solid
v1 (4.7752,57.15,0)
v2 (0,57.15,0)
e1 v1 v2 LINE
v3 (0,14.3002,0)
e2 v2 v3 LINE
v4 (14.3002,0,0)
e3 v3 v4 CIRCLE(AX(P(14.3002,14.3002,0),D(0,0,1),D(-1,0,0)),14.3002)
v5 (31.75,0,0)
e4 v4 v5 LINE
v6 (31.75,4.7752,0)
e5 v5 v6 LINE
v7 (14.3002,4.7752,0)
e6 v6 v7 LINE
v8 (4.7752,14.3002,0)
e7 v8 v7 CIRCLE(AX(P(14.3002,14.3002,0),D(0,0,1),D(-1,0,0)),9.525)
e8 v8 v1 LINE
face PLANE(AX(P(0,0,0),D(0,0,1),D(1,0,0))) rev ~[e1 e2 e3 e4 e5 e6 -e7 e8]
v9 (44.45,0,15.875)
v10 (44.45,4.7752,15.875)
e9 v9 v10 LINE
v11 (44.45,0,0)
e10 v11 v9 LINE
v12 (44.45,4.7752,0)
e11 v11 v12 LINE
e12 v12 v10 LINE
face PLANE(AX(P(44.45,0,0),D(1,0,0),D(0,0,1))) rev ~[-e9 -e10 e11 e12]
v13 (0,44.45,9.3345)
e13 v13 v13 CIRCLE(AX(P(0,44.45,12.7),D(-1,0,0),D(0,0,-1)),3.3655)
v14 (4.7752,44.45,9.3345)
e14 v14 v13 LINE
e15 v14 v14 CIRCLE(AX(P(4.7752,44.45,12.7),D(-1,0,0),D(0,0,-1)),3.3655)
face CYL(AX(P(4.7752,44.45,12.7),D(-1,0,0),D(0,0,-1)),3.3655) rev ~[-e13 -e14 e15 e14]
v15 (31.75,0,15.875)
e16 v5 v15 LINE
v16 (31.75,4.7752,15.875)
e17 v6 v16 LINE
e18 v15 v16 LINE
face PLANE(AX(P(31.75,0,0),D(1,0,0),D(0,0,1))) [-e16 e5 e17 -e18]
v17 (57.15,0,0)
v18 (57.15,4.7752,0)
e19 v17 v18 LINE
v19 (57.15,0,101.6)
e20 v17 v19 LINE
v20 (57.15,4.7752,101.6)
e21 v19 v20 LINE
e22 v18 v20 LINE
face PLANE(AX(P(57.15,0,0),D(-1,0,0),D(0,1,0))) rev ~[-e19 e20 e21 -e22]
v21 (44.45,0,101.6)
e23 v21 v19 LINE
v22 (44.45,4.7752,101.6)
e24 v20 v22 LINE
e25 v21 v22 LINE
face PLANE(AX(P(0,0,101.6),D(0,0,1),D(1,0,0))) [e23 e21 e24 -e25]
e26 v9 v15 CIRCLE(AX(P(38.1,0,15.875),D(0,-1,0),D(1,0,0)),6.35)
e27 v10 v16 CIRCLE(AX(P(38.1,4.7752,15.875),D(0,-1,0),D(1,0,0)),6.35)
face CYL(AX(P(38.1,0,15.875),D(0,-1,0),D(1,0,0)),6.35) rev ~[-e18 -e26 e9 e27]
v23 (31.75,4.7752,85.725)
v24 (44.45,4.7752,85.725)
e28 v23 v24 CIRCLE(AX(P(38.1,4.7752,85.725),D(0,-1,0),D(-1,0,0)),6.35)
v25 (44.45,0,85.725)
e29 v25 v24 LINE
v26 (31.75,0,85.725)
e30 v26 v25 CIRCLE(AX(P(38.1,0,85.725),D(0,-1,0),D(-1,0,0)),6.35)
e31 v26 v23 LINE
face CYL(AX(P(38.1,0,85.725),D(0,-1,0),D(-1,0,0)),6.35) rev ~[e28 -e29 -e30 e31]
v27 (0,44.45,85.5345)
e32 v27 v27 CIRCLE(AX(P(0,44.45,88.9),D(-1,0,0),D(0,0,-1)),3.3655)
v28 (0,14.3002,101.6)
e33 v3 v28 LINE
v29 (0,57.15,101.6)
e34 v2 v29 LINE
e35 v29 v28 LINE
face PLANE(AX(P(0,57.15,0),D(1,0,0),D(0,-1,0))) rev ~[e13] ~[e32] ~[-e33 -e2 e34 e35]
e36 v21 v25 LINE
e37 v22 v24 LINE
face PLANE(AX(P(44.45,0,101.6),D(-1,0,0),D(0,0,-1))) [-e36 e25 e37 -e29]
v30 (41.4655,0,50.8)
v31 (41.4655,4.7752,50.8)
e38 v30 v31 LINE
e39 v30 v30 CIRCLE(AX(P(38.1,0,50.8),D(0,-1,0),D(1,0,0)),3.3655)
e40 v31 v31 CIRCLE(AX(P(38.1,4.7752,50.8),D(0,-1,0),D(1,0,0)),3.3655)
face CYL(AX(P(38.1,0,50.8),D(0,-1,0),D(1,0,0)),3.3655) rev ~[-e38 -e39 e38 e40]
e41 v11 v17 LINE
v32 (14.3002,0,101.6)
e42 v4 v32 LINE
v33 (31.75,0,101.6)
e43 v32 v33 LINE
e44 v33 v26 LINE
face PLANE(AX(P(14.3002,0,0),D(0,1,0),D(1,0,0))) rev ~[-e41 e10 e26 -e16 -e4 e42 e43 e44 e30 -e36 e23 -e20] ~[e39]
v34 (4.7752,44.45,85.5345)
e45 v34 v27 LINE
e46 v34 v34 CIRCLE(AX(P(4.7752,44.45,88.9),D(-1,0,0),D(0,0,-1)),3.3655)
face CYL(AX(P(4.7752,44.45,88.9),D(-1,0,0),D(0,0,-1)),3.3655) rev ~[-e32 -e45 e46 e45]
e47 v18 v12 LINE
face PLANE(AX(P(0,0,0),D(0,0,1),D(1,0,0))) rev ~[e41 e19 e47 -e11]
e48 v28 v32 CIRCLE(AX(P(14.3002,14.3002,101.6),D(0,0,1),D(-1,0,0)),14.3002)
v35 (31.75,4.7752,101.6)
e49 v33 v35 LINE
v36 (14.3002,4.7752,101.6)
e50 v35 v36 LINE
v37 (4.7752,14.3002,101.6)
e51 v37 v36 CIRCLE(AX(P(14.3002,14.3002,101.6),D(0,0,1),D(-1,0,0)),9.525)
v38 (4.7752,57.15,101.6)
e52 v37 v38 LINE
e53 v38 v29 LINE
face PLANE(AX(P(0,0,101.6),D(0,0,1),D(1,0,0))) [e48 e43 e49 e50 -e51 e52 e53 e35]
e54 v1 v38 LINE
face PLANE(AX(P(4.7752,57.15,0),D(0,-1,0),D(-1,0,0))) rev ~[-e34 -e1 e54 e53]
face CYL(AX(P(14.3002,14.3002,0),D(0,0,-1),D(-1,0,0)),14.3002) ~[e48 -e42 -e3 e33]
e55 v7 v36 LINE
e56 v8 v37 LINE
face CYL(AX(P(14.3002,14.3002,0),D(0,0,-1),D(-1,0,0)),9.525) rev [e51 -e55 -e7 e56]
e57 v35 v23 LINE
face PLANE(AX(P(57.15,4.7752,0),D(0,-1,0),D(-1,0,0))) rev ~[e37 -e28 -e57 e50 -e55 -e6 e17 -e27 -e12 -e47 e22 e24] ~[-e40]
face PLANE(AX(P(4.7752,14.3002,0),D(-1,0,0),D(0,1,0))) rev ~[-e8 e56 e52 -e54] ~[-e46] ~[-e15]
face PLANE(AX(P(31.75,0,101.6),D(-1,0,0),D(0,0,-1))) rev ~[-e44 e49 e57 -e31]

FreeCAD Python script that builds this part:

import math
import FreeCAD as App
import Part
import Sketcher
from FreeCAD import Vector
Q = App.Units.Quantity

doc = App.newDocument("Part")
body = doc.addObject("PartDesign::Body", "Body")

# Sketch on XY plane
sketch1 = doc.addObject("Sketcher::SketchObject", "Sketch")
body.addObject(sketch1)
sketch1.AttachmentSupport = (doc.XY_Plane, [""])
sketch1.MapMode = "FlatFace"
sketch1.addGeometry([
    Part.LineSegment(Vector(4.8, 57.1, 0), Vector(0, 57.1, 0)),  # 0
    Part.LineSegment(Vector(0, 57.1, 0), Vector(0, 14.3, 0)),  # 1
    Part.ArcOfCircle(Part.Circle(Vector(14.3, 14.3, 0), Vector(0, 0, 1), 14.3), math.radians(180), math.radians(270)),  # 2
    Part.LineSegment(Vector(14.3, 0, 0), Vector(57.1, 0, 0)),  # 3
    Part.LineSegment(Vector(57.1, 0, 0), Vector(57.1, 4.8, 0)),  # 4
    Part.LineSegment(Vector(57.1, 4.8, 0), Vector(14.3, 4.8, 0)),  # 5
    Part.ArcOfCircle(Part.Circle(Vector(14.3, 14.3, 0), Vector(0, 0, 1), 9.5), math.radians(180), math.radians(270)),  # 6
    Part.LineSegment(Vector(4.8, 14.3, 0), Vector(4.8, 57.1, 0)),  # 7
], False)
sketch1.addConstraint([
    Sketcher.Constraint("Coincident", 0, 2, 1, 1),
    Sketcher.Constraint("Tangent", 1, 2, 2, 1),
    Sketcher.Constraint("Tangent", 2, 2, 3, 1),
    Sketcher.Constraint("Coincident", 3, 2, 4, 1),
    Sketcher.Constraint("Coincident", 4, 2, 5, 1),
    Sketcher.Constraint("Tangent", 5, 2, 6, 2),
    Sketcher.Constraint("Tangent", 6, 1, 7, 1),
    Sketcher.Constraint("Coincident", 7, 2, 0, 1),
    Sketcher.Constraint("Horizontal", 0),
    Sketcher.Constraint("Vertical", 1),
    Sketcher.Constraint("Horizontal", 3),
    Sketcher.Constraint("Vertical", 4),
    Sketcher.Constraint("Horizontal", 5),
    Sketcher.Constraint("Vertical", 7),
    Sketcher.Constraint("Coincident", 6, 3, 2, 3),
    Sketcher.Constraint("PointOnObject", 0, 2, -2),
    Sketcher.Constraint("PointOnObject", 2, 2, -1),
    Sketcher.Constraint("Equal", 5, 1),
    Sketcher.Constraint("Radius", 2, Q("0.563 in")),
    Sketcher.Constraint("Radius", 6, Q("0.375 in")),
    Sketcher.Constraint("DistanceY", -1, 1, 0, 2, Q("2.25 in")),
])
pad1 = doc.addObject("PartDesign::Pad", "Pad")
body.addObject(pad1)
pad1.Profile = sketch1
pad1.Length = Q("4 in")

# Sketch on YZ plane
sketch2 = doc.addObject("Sketcher::SketchObject", "Sketch001")
body.addObject(sketch2)
sketch2.AttachmentSupport = (doc.YZ_Plane, [""])
sketch2.MapMode = "FlatFace"
sketch2.AttachmentOffset = App.Placement(Vector(0, 0, 0.188 * 25.4), App.Rotation())
sketch2.addGeometry(Part.Circle(Vector(44.5, 88.9, 0), Vector(0, 0, 1), 3.4), False)
sketch2.addConstraint([
    Sketcher.Constraint("Diameter", 0, Q("0.265 in")),
    Sketcher.Constraint("DistanceY", -1, 1, 0, 3, Q("3.5 in")),
    Sketcher.Constraint("DistanceX", -1, 1, 0, 3, Q("1.75 in")),
])
doc.recompute()
hole = doc.addObject("PartDesign::Hole", "Hole")
body.addObject(hole)
hole.Profile = sketch2
hole.ThreadType = "None"
hole.Diameter = Q("0.265 in")
hole.DepthType = "ThroughAll"

# Sketch on YZ plane
sketch3 = doc.addObject("Sketcher::SketchObject", "Sketch002")
body.addObject(sketch3)
sketch3.AttachmentSupport = (doc.YZ_Plane, [""])
sketch3.MapMode = "FlatFace"
sketch3.AttachmentOffset = App.Placement(Vector(0, 0, 0.188 * 25.4), App.Rotation())
sketch3.addGeometry(Part.Circle(Vector(44.5, 12.7, 0), Vector(0, 0, 1), 3.4), False)
sketch3.addConstraint([
    Sketcher.Constraint("Diameter", 0, Q("0.265 in")),
    Sketcher.Constraint("DistanceY", -1, 1, 0, 3, Q("0.5 in")),
    Sketcher.Constraint("DistanceX", -1, 1, 0, 3, Q("1.75 in")),
])
doc.recompute()
hole2 = doc.addObject("PartDesign::Hole", "Hole001")
body.addObject(hole2)
hole2.Profile = sketch3
hole2.ThreadType = "None"
hole2.Diameter = Q("0.265 in")
hole2.DepthType = "ThroughAll"

# Sketch on XZ plane
sketch4 = doc.addObject("Sketcher::SketchObject", "Sketch003")
body.addObject(sketch4)
sketch4.AttachmentSupport = (doc.XZ_Plane, [""])
sketch4.MapMode = "FlatFace"
sketch4.addGeometry([
    Part.LineSegment(Vector(44.5, 85.7, 0), Vector(44.5, 101.6, 0)),  # 0
    Part.LineSegment(Vector(44.5, 101.6, 0), Vector(31.8, 101.6, 0)),  # 1
    Part.LineSegment(Vector(31.8, 101.6, 0), Vector(31.8, 85.7, 0)),  # 2
    Part.ArcOfCircle(Part.Circle(Vector(38.1, 85.7, 0), Vector(0, 0, 1), 6.4), math.radians(180), math.radians(360)),  # 3
    Part.LineSegment(Vector(31.8, 0, 0), Vector(44.5, 0, 0)),  # 4
    Part.LineSegment(Vector(44.5, 0, 0), Vector(44.5, 15.9, 0)),  # 5
    Part.ArcOfCircle(Part.Circle(Vector(38.1, 15.9, 0), Vector(0, 0, 1), 6.3), math.radians(0), math.radians(180)),  # 6
    Part.LineSegment(Vector(31.8, 15.9, 0), Vector(31.8, 0, 0)),  # 7
    Part.Circle(Vector(38.1, 50.8, 0), Vector(0, 0, 1), 3.4),  # 8
], False)
sketch4.addConstraint([
    Sketcher.Constraint("Coincident", 0, 2, 1, 1),
    Sketcher.Constraint("Coincident", 1, 2, 2, 1),
    Sketcher.Constraint("Tangent", 2, 2, 3, 1),
    Sketcher.Constraint("Tangent", 3, 2, 0, 1),
    Sketcher.Constraint("Coincident", 4, 2, 5, 1),
    Sketcher.Constraint("Tangent", 5, 2, 6, 1),
    Sketcher.Constraint("Tangent", 6, 2, 7, 1),
    Sketcher.Constraint("Coincident", 7, 2, 4, 1),
    Sketcher.Constraint("Vertical", 0),
    Sketcher.Constraint("Horizontal", 1),
    Sketcher.Constraint("Vertical", 2),
    Sketcher.Constraint("Horizontal", 4),
    Sketcher.Constraint("Vertical", 5),
    Sketcher.Constraint("Vertical", 7),
    Sketcher.Constraint("Equal", 3, 6),
    Sketcher.Constraint("PointOnObject", 4, 2, -1),
    Sketcher.Constraint("Vertical", 3, 3, 6, 3),
    Sketcher.Constraint("Vertical", 6, 3, 8, 3),
    Sketcher.Constraint("Equal", 2, 5),
    Sketcher.Constraint("Radius", 3, Q("0.25 in")),
    Sketcher.Constraint("Diameter", 8, Q("0.265 in")),
    Sketcher.Constraint("DistanceY", -1, 1, 8, 3, Q("2 in")),
    Sketcher.Constraint("DistanceY", 8, 3, 0, 2, Q("2 in")),
    Sketcher.Constraint("DistanceY", 0, 1, 0, 2, Q("0.625 in")),
    Sketcher.Constraint("DistanceX", -1, 1, 3, 3, Q("1.5 in")),
])
pocket1 = doc.addObject("PartDesign::Pocket", "Pocket")
body.addObject(pocket1)
pocket1.Profile = sketch4
pocket1.Length = Q("4 in")

doc.recompute()
